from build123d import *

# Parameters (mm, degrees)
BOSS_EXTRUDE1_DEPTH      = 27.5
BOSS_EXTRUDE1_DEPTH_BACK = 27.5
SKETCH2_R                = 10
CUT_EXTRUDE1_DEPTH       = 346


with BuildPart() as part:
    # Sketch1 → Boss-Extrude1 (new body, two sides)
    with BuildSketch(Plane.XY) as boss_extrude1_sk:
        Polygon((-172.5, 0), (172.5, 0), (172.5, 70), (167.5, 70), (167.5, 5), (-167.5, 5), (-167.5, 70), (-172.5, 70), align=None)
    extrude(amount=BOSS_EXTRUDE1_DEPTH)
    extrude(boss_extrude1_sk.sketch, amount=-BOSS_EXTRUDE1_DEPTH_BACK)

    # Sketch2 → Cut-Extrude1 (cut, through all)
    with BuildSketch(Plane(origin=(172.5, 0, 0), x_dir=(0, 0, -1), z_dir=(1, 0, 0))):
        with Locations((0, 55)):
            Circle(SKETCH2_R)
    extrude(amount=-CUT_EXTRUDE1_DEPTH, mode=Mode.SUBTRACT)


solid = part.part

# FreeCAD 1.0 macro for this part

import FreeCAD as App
import Part
import Sketcher
Q = App.Units.Quantity

doc = App.newDocument("Part")
params = doc.addObject("Spreadsheet::Sheet", "Params")
for row, (alias, value) in enumerate([
    ("sketch1_width", "345 mm"),
    ("sketch1_width2", "5 mm"),
    ("sketch1_height", "70 mm"),
    ("sketch1_height2", "65 mm"),
    ("pad1_length", "27.5 mm"),
    ("pad1_length2", "27.5 mm"),
    ("sketch2_diameter", "20 mm"),
], start=1):
    params.set(f"A{row}", alias)
    params.set(f"B{row}", "=" + value)
    params.setAlias(f"B{row}", alias)

body = doc.addObject("PartDesign::Body", "Body")

# Sketch on XY plane
sketch1 = body.newObject("Sketcher::SketchObject", "Sketch")
sketch1.AttachmentSupport = (doc.getObject("XY_Plane"), [""])
sketch1.MapMode = "FlatFace"
sketch1.addGeometry(Part.LineSegment(App.Vector(-172, 0, 0), App.Vector(172, 0, 0)), False)
sketch1.addGeometry(Part.LineSegment(App.Vector(172, 0, 0), App.Vector(172, 70, 0)), False)
sketch1.addGeometry(Part.LineSegment(App.Vector(172, 70, 0), App.Vector(168, 70, 0)), False)
sketch1.addGeometry(Part.LineSegment(App.Vector(168, 70, 0), App.Vector(168, 5, 0)), False)
sketch1.addGeometry(Part.LineSegment(App.Vector(168, 5, 0), App.Vector(-168, 5, 0)), False)
sketch1.addGeometry(Part.LineSegment(App.Vector(-168, 5, 0), App.Vector(-168, 70, 0)), False)
sketch1.addGeometry(Part.LineSegment(App.Vector(-168, 70, 0), App.Vector(-172, 70, 0)), False)
sketch1.addGeometry(Part.LineSegment(App.Vector(-172, 70, 0), App.Vector(-172, 0, 0)), False)
sketch1.addConstraint(Sketcher.Constraint("Coincident", 0, 2, 1, 1))
sketch1.addConstraint(Sketcher.Constraint("Coincident", 1, 2, 2, 1))
sketch1.addConstraint(Sketcher.Constraint("Coincident", 2, 2, 3, 1))
sketch1.addConstraint(Sketcher.Constraint("Coincident", 3, 2, 4, 1))
sketch1.addConstraint(Sketcher.Constraint("Coincident", 4, 2, 5, 1))
sketch1.addConstraint(Sketcher.Constraint("Coincident", 5, 2, 6, 1))
sketch1.addConstraint(Sketcher.Constraint("Coincident", 6, 2, 7, 1))
sketch1.addConstraint(Sketcher.Constraint("Coincident", 7, 2, 0, 1))
sketch1.addConstraint(Sketcher.Constraint("Horizontal", 0))
sketch1.addConstraint(Sketcher.Constraint("Vertical", 1))
sketch1.addConstraint(Sketcher.Constraint("Horizontal", 2))
sketch1.addConstraint(Sketcher.Constraint("Vertical", 3))
sketch1.addConstraint(Sketcher.Constraint("Horizontal", 4))
sketch1.addConstraint(Sketcher.Constraint("Vertical", 5))
sketch1.addConstraint(Sketcher.Constraint("Horizontal", 6))
sketch1.addConstraint(Sketcher.Constraint("Vertical", 7))
sketch1.addConstraint(Sketcher.Constraint("Symmetric", 0, 2, 7, 2, -1, 1))
sketch1.addConstraint(Sketcher.Constraint("Symmetric", 2, 2, 5, 2, -2))
sketch1.addConstraint(Sketcher.Constraint("DistanceX", 0, 1, 0, 2, Q("345 mm")))
sketch1.addConstraint(Sketcher.Constraint("DistanceX", 2, 2, 2, 1, Q("5 mm")))
sketch1.addConstraint(Sketcher.Constraint("DistanceY", 1, 1, 1, 2, Q("70 mm")))
sketch1.addConstraint(Sketcher.Constraint("DistanceY", 3, 2, 3, 1, Q("65 mm")))
sketch1.setExpression("Constraints[18]", "Params.sketch1_width")
sketch1.setExpression("Constraints[19]", "Params.sketch1_width2")
sketch1.setExpression("Constraints[20]", "Params.sketch1_height")
sketch1.setExpression("Constraints[21]", "Params.sketch1_height2")
pad1 = body.newObject("PartDesign::Pad", "Pad")
pad1.Profile = sketch1
pad1.Type = "TwoLengths"
pad1.setExpression("Length", "Params.pad1_length")
pad1.setExpression("Length2", "Params.pad1_length2")

# Sketch on YZ plane
sketch2 = body.newObject("Sketcher::SketchObject", "Sketch001")
sketch2.AttachmentSupport = (doc.getObject("YZ_Plane"), [""])
sketch2.MapMode = "FlatFace"
sketch2.AttachmentOffset = App.Placement(App.Vector(0, 0, 172.5), App.Rotation())
sketch2.addGeometry(Part.Circle(App.Vector(55, 0, 0), App.Vector(0, 0, 1), 10), False)
sketch2.addConstraint(Sketcher.Constraint("PointOnObject", 0, 3, -1))
sketch2.addConstraint(Sketcher.Constraint("Diameter", 0, Q("20 mm")))
sketch2.addConstraint(Sketcher.Constraint("DistanceX", -1, 1, 0, 3, Q("55 mm")))
sketch2.setExpression("Constraints[1]", "Params.sketch2_diameter")
pocket1 = body.newObject("PartDesign::Pocket", "Pocket")
pocket1.Profile = sketch2
pocket1.Type = "ThroughAll"

doc.recompute()
